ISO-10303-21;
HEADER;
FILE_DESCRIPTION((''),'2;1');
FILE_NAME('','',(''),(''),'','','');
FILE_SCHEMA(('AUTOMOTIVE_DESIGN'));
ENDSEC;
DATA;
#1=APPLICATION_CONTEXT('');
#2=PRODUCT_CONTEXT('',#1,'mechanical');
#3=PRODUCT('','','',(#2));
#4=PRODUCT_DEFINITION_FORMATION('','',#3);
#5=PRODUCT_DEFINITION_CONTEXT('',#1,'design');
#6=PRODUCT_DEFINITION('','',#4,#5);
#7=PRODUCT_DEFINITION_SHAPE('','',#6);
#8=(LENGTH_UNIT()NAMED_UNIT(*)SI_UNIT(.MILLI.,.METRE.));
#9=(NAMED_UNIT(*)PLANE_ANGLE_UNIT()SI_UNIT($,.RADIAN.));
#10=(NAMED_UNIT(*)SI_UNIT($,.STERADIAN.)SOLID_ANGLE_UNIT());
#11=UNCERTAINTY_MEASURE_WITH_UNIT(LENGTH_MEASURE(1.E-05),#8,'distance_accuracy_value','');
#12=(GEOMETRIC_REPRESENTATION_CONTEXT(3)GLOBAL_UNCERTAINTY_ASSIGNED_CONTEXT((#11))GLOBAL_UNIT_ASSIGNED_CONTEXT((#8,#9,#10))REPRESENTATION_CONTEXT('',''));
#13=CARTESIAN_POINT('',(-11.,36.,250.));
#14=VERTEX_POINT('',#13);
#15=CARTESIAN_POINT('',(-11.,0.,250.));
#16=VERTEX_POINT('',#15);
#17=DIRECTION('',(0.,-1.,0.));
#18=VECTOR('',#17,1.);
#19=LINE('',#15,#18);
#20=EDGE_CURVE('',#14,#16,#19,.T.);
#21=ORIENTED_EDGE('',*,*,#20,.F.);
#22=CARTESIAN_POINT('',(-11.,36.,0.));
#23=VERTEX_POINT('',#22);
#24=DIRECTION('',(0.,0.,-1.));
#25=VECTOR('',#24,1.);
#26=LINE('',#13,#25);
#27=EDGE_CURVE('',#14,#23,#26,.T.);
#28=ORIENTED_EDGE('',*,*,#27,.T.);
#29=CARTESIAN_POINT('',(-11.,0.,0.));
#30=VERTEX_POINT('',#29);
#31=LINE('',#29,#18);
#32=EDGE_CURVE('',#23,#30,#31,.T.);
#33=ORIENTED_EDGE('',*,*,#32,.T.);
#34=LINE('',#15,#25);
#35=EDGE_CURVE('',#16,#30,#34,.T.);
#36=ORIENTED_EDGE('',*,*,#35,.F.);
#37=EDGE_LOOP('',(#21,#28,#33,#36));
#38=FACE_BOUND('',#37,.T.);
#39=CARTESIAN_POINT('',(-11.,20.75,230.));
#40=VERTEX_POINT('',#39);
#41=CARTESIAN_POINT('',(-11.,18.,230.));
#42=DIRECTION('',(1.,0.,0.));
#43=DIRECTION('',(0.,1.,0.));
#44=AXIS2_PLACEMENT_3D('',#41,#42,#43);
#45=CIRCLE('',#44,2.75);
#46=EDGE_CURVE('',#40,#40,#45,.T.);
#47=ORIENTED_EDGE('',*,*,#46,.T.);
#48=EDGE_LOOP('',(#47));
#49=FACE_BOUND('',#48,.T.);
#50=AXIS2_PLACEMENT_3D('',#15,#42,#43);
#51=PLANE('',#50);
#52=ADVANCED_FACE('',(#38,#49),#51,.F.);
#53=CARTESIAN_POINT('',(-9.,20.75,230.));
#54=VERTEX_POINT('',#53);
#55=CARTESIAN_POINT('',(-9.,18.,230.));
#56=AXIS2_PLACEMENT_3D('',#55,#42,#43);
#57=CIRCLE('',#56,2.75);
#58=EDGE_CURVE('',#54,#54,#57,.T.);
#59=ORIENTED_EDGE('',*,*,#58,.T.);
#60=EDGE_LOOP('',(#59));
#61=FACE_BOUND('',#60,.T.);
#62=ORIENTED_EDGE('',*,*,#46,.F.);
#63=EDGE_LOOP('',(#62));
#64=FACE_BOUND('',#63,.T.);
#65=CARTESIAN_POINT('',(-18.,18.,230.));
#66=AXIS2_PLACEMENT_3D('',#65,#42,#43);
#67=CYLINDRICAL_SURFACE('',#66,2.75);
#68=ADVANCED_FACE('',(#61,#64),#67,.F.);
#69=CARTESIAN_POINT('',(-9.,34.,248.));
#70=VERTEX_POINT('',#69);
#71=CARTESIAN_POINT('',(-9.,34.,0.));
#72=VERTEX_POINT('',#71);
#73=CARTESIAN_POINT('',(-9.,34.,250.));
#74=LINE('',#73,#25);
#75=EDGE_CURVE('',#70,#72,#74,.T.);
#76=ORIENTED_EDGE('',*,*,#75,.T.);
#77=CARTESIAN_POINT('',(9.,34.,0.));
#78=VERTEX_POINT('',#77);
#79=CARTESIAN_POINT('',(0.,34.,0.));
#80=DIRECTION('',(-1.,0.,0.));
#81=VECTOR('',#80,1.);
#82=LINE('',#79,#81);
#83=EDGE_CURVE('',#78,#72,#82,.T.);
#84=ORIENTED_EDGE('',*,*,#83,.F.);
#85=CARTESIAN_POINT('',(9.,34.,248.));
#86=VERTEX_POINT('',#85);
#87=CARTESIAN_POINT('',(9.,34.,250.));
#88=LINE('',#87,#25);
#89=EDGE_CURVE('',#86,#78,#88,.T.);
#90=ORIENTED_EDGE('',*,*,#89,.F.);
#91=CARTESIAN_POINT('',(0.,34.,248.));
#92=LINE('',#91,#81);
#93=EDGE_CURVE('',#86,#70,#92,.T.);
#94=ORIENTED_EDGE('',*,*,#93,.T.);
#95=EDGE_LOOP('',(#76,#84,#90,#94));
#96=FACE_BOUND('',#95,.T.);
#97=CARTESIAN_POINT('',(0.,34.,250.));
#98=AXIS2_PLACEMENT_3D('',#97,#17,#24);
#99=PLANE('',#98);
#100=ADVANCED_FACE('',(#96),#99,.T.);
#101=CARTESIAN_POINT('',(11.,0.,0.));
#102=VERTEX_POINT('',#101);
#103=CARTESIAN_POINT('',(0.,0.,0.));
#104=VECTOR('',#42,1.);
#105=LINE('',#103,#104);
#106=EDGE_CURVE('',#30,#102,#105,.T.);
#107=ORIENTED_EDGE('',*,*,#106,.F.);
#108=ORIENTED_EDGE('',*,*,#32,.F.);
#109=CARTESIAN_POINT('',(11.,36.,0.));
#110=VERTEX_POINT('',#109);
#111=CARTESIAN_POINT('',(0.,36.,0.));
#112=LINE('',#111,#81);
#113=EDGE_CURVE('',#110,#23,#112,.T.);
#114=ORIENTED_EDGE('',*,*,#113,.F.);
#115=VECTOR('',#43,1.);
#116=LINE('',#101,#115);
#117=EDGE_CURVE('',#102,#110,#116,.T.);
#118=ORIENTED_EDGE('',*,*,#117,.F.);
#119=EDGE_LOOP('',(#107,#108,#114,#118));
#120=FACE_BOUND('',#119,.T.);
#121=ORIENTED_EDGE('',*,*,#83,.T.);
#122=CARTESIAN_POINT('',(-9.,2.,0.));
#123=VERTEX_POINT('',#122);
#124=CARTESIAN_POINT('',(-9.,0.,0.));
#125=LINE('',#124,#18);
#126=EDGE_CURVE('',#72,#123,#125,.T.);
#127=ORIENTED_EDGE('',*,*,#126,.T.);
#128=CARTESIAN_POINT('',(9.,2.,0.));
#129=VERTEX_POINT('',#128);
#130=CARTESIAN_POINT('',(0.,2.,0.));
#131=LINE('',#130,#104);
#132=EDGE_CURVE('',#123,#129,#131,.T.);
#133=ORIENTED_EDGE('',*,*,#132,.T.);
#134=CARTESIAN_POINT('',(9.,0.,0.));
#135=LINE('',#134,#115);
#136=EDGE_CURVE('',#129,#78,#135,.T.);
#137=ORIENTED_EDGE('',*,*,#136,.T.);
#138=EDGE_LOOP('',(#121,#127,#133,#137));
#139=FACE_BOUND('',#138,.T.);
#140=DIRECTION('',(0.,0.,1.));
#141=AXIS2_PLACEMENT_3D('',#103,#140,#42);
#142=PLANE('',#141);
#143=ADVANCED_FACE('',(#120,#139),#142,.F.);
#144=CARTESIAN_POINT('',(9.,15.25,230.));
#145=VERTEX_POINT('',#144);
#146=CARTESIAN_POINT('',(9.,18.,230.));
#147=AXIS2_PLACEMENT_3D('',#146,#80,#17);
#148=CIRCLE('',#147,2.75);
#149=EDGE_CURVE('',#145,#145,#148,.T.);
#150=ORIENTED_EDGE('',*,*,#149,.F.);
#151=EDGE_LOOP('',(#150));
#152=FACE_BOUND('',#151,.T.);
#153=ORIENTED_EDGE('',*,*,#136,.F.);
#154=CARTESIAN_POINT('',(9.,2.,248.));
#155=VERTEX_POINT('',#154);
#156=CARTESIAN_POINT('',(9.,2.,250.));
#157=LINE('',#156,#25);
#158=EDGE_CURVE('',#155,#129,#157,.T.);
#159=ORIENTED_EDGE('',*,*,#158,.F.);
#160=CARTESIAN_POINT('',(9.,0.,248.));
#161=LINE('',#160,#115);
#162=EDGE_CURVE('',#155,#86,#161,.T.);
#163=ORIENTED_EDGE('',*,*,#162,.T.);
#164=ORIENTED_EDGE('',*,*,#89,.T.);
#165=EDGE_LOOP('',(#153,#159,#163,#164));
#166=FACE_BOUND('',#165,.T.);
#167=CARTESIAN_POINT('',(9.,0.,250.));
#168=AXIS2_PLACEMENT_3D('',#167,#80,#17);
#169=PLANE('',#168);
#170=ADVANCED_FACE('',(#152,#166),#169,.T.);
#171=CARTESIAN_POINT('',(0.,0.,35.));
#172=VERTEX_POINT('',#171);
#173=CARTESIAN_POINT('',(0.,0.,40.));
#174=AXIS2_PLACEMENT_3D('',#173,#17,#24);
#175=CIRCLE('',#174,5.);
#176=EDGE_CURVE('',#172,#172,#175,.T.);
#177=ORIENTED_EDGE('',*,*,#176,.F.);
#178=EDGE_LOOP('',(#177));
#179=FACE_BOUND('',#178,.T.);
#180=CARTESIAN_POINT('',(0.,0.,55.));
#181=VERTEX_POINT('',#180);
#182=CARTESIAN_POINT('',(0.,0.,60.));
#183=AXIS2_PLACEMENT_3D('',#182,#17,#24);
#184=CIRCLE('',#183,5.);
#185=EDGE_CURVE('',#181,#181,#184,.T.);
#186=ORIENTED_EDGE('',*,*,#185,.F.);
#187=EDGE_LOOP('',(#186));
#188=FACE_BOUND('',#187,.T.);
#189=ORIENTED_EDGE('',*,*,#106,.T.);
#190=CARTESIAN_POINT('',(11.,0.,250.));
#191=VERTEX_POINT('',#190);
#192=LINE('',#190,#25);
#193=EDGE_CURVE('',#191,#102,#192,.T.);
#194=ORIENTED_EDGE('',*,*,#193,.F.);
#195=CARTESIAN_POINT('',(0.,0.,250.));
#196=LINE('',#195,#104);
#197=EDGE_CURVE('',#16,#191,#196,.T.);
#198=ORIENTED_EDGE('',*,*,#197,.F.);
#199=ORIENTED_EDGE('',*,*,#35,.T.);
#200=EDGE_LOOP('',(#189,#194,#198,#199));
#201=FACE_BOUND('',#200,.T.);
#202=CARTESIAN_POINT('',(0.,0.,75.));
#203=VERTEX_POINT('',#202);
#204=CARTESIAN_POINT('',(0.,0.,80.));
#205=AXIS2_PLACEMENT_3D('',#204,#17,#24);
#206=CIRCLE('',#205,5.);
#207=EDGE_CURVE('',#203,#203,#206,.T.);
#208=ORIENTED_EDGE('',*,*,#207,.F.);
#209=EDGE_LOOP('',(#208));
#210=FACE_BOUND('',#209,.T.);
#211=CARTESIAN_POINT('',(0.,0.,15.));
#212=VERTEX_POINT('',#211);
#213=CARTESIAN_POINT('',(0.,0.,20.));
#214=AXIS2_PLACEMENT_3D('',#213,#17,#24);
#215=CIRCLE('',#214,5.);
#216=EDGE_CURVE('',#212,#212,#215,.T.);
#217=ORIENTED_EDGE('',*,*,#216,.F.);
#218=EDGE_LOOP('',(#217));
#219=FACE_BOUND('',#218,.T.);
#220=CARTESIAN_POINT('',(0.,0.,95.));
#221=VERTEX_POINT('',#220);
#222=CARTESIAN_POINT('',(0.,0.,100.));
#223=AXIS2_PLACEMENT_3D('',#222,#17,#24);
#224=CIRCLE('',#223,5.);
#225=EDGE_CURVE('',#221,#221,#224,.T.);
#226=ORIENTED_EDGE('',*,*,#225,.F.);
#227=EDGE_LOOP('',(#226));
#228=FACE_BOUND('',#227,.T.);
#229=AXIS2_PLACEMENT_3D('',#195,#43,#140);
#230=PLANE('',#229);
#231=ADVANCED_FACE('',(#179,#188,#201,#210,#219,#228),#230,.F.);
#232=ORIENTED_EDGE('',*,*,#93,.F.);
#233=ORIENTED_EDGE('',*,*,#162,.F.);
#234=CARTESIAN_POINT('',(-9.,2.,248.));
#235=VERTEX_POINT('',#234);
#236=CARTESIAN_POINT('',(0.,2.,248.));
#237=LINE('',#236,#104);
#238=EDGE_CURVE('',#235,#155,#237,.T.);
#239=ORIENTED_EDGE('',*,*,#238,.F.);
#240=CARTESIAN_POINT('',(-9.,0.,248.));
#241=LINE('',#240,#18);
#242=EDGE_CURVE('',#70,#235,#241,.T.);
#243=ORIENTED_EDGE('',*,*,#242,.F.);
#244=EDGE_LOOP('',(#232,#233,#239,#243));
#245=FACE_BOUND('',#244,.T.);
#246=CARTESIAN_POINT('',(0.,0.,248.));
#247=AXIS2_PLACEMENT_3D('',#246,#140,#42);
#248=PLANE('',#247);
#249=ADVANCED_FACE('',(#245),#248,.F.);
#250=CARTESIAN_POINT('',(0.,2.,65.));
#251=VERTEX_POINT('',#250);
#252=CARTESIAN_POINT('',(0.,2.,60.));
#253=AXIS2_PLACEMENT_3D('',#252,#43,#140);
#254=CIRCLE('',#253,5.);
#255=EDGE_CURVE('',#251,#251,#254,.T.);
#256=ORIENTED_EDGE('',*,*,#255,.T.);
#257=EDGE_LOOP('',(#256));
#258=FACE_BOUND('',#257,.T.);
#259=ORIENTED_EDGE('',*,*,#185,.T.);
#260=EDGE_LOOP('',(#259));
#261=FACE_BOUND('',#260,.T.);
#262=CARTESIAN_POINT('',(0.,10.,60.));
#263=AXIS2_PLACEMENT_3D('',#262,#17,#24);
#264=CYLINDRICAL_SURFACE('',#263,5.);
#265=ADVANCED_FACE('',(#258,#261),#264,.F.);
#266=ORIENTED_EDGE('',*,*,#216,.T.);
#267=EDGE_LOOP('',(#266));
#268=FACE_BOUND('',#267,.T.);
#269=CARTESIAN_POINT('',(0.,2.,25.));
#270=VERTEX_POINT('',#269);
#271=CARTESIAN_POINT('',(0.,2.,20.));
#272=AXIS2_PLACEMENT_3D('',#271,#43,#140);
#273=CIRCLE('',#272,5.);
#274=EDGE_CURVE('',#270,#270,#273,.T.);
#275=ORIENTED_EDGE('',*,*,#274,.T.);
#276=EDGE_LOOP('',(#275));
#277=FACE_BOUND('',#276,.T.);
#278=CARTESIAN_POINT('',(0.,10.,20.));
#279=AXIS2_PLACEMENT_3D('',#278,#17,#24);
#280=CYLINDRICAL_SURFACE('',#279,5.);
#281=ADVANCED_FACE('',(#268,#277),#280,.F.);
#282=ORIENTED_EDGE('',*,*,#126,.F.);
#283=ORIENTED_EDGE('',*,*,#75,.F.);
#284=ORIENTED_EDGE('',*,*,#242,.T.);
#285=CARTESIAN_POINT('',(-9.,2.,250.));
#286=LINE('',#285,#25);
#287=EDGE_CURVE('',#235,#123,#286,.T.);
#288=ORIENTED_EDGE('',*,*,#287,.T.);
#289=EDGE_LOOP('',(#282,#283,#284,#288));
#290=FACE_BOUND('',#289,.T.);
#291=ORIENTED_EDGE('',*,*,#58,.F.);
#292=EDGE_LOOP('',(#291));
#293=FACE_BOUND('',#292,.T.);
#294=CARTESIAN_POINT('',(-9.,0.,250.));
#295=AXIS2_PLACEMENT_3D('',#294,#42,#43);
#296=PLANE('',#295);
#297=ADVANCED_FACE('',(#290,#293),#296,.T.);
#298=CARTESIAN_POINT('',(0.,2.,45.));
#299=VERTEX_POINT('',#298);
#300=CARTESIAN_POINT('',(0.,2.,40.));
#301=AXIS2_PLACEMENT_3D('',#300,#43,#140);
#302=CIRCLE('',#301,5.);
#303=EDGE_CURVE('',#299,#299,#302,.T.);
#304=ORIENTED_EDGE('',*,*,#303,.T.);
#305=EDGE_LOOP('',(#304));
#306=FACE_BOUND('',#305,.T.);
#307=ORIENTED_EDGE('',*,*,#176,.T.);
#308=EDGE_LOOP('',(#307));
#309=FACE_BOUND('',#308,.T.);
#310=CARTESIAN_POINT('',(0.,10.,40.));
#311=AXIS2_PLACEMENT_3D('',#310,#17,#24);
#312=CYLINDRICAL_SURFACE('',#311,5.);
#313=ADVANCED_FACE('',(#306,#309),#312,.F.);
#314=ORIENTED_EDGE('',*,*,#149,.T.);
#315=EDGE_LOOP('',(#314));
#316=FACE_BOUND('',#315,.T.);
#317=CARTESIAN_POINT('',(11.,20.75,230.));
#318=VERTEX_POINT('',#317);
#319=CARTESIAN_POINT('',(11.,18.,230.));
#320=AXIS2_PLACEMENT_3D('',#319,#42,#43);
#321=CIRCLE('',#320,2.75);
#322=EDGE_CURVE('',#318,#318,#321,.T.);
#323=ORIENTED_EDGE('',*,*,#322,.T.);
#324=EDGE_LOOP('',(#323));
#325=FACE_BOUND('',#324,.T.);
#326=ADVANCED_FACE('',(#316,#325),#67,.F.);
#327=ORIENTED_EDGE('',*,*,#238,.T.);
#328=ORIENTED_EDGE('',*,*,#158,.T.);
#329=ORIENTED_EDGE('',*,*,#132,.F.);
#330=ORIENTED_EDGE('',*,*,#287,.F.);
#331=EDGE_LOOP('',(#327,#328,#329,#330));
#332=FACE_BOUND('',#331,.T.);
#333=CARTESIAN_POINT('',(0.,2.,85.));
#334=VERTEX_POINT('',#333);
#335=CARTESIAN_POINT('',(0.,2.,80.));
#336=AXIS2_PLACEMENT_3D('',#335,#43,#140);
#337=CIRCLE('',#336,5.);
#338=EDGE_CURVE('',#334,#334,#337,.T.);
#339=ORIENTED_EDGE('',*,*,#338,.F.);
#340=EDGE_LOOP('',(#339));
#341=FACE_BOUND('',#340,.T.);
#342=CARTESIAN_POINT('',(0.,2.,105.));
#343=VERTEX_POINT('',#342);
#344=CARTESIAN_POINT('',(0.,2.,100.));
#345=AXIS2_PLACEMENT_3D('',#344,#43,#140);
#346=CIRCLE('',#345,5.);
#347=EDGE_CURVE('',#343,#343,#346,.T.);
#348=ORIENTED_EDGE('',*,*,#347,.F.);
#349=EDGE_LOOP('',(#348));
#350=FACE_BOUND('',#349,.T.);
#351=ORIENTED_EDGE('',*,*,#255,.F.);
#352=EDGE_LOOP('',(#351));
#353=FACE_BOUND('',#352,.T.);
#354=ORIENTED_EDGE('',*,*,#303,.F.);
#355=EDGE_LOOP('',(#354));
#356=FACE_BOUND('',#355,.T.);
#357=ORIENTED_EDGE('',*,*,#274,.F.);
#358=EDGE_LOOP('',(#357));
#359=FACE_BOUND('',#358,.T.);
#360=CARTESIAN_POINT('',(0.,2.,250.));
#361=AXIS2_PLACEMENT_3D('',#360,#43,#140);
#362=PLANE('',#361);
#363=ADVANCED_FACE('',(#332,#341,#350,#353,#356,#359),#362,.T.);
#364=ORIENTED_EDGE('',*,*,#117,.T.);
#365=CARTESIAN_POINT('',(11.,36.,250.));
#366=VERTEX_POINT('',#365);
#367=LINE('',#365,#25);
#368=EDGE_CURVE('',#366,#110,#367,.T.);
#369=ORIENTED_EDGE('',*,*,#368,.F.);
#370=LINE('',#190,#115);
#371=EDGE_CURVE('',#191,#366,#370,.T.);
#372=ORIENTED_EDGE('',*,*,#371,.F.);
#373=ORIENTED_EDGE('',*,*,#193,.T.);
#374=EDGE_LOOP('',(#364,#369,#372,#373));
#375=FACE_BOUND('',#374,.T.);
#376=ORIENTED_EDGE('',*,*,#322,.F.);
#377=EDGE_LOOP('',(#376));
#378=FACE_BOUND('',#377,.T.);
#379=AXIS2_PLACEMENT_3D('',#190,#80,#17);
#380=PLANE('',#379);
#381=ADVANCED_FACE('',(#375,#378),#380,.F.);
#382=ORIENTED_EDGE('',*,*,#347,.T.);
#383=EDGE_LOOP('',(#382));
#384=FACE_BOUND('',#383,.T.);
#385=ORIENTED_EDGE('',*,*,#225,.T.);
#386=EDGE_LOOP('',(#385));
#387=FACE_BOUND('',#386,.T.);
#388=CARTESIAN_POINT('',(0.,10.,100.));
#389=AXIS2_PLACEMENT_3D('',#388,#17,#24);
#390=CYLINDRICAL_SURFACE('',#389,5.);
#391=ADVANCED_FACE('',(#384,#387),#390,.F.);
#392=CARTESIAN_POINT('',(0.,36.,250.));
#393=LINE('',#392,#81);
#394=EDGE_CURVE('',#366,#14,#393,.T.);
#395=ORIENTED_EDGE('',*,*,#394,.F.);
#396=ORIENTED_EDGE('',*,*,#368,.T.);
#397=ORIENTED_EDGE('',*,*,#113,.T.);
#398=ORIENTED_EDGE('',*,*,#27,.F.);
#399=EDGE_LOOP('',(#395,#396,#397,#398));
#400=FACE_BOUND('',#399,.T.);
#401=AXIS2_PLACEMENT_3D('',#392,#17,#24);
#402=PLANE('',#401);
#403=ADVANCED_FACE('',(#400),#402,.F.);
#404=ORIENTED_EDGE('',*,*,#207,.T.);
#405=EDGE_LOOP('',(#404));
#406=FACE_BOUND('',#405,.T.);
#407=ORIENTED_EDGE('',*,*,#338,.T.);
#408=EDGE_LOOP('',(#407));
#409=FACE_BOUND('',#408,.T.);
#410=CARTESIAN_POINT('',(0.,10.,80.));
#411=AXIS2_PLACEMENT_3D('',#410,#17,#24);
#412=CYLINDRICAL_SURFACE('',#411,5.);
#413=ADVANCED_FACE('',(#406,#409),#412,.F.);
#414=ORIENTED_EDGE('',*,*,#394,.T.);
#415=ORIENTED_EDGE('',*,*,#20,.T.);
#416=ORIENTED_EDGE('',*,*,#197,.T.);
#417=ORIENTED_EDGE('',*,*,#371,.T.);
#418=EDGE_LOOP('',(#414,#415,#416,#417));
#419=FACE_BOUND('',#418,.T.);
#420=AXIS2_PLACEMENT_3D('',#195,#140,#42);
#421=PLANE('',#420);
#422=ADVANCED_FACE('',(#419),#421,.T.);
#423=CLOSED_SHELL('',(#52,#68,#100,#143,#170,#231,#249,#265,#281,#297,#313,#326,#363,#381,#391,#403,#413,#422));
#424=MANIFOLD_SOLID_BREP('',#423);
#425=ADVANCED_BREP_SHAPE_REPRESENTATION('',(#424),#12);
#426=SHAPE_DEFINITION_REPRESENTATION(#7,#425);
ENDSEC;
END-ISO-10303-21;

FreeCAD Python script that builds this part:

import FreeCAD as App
import Part
import Sketcher
from FreeCAD import Vector
Q = App.Units.Quantity


def faces_at(feature, points):
    """Names of the faces that lie closest to the given points."""
    faces = feature.Shape.Faces
    near = lambda p: min(range(len(faces)), key=lambda i: faces[i].distToShape(Part.Vertex(*p))[0])
    return sorted({f"Face{near(p) + 1}" for p in points})

doc = App.newDocument("Part")
body = doc.addObject("PartDesign::Body", "Body")

# Sketch on XY plane
sketch1 = doc.addObject("Sketcher::SketchObject", "Sketch")
body.addObject(sketch1)
sketch1.AttachmentSupport = (doc.XY_Plane, [""])
sketch1.MapMode = "FlatFace"
sketch1.addGeometry(Part.LineSegment(Vector(-11, 36, 0), Vector(-11, 0, 0)), False)
sketch1.addGeometry(Part.LineSegment(Vector(-11, 0, 0), Vector(11, 0, 0)), False)
sketch1.addGeometry(Part.LineSegment(Vector(11, 0, 0), Vector(11, 36, 0)), False)
sketch1.addGeometry(Part.LineSegment(Vector(11, 36, 0), Vector(-11, 36, 0)), False)
sketch1.addConstraint(Sketcher.Constraint("Coincident", 0, 2, 1, 1))
sketch1.addConstraint(Sketcher.Constraint("Coincident", 1, 2, 2, 1))
sketch1.addConstraint(Sketcher.Constraint("Coincident", 2, 2, 3, 1))
sketch1.addConstraint(Sketcher.Constraint("Coincident", 3, 2, 0, 1))
sketch1.addConstraint(Sketcher.Constraint("Vertical", 0))
sketch1.addConstraint(Sketcher.Constraint("Horizontal", 1))
sketch1.addConstraint(Sketcher.Constraint("Vertical", 2))
sketch1.addConstraint(Sketcher.Constraint("Horizontal", 3))
sketch1.addConstraint(Sketcher.Constraint("Symmetric", 0, 2, 1, 2, -1, 1))
sketch1.addConstraint(Sketcher.Constraint("DistanceX", 1, 1, 1, 2, Q("22 mm")))
sketch1.addConstraint(Sketcher.Constraint("DistanceY", 0, 2, 0, 1, Q("36 mm")))
pad1 = doc.addObject("PartDesign::Pad", "Pad")
body.addObject(pad1)
pad1.Profile = sketch1
pad1.Length = 250
doc.recompute()

thickness = doc.addObject("PartDesign::Thickness", "Thickness")
body.addObject(thickness)
thickness.Base = (pad1, faces_at(pad1, [(0, 18, 0)]))
thickness.Value = 2
thickness.Reversed = True
thickness.Join = "Intersection"

# Sketch on XZ plane
sketch2 = doc.addObject("Sketcher::SketchObject", "Sketch001")
body.addObject(sketch2)
sketch2.AttachmentSupport = (doc.XZ_Plane, [""])
sketch2.MapMode = "FlatFace"
sketch2.addGeometry(Part.Circle(Vector(0, 20, 0), Vector(0, 0, 1), 5), False)
sketch2.addGeometry(Part.Circle(Vector(0, 40, 0), Vector(0, 0, 1), 5), False)
sketch2.addGeometry(Part.Circle(Vector(0, 60, 0), Vector(0, 0, 1), 5), False)
sketch2.addGeometry(Part.Circle(Vector(0, 80, 0), Vector(0, 0, 1), 5), False)
sketch2.addGeometry(Part.Circle(Vector(0, 100, 0), Vector(0, 0, 1), 5), False)
sketch2.addConstraint(Sketcher.Constraint("Equal", 0, 1))
sketch2.addConstraint(Sketcher.Constraint("Equal", 1, 2))
sketch2.addConstraint(Sketcher.Constraint("Equal", 2, 3))
sketch2.addConstraint(Sketcher.Constraint("Equal", 3, 4))
sketch2.addConstraint(Sketcher.Constraint("PointOnObject", 0, 3, -2))
sketch2.addConstraint(Sketcher.Constraint("PointOnObject", 1, 3, -2))
sketch2.addConstraint(Sketcher.Constraint("PointOnObject", 2, 3, -2))
sketch2.addConstraint(Sketcher.Constraint("PointOnObject", 3, 3, -2))
sketch2.addConstraint(Sketcher.Constraint("PointOnObject", 4, 3, -2))
sketch2.addConstraint(Sketcher.Constraint("Diameter", 0, Q("10 mm")))
sketch2.addConstraint(Sketcher.Constraint("DistanceY", -1, 1, 0, 3, Q("20 mm")))
sketch2.addConstraint(Sketcher.Constraint("DistanceY", -1, 1, 1, 3, Q("40 mm")))
sketch2.addConstraint(Sketcher.Constraint("DistanceY", -1, 1, 2, 3, Q("60 mm")))
sketch2.addConstraint(Sketcher.Constraint("DistanceY", -1, 1, 3, 3, Q("80 mm")))
sketch2.addConstraint(Sketcher.Constraint("DistanceY", -1, 1, 4, 3, Q("100 mm")))
pocket1 = doc.addObject("PartDesign::Pocket", "Pocket")
body.addObject(pocket1)
pocket1.Profile = sketch2
pocket1.Length = 10

# Sketch on YZ plane
sketch3 = doc.addObject("Sketcher::SketchObject", "Sketch002")
body.addObject(sketch3)
sketch3.AttachmentSupport = (doc.YZ_Plane, [""])
sketch3.MapMode = "FlatFace"
sketch3.AttachmentOffset = App.Placement(Vector(0, 0, 11), App.Rotation())
sketch3.addGeometry(Part.Circle(Vector(18, 230, 0), Vector(0, 0, 1), 2.8), False)
sketch3.addConstraint(Sketcher.Constraint("Diameter", 0, Q("5.5 mm")))
sketch3.addConstraint(Sketcher.Constraint("DistanceX", -1, 1, 0, 3, Q("18 mm")))
sketch3.addConstraint(Sketcher.Constraint("DistanceY", -1, 1, 0, 3, Q("230 mm")))
pocket2 = doc.addObject("PartDesign::Pocket", "Pocket001")
body.addObject(pocket2)
pocket2.Profile = sketch3
pocket2.Length = 29

doc.recompute()
